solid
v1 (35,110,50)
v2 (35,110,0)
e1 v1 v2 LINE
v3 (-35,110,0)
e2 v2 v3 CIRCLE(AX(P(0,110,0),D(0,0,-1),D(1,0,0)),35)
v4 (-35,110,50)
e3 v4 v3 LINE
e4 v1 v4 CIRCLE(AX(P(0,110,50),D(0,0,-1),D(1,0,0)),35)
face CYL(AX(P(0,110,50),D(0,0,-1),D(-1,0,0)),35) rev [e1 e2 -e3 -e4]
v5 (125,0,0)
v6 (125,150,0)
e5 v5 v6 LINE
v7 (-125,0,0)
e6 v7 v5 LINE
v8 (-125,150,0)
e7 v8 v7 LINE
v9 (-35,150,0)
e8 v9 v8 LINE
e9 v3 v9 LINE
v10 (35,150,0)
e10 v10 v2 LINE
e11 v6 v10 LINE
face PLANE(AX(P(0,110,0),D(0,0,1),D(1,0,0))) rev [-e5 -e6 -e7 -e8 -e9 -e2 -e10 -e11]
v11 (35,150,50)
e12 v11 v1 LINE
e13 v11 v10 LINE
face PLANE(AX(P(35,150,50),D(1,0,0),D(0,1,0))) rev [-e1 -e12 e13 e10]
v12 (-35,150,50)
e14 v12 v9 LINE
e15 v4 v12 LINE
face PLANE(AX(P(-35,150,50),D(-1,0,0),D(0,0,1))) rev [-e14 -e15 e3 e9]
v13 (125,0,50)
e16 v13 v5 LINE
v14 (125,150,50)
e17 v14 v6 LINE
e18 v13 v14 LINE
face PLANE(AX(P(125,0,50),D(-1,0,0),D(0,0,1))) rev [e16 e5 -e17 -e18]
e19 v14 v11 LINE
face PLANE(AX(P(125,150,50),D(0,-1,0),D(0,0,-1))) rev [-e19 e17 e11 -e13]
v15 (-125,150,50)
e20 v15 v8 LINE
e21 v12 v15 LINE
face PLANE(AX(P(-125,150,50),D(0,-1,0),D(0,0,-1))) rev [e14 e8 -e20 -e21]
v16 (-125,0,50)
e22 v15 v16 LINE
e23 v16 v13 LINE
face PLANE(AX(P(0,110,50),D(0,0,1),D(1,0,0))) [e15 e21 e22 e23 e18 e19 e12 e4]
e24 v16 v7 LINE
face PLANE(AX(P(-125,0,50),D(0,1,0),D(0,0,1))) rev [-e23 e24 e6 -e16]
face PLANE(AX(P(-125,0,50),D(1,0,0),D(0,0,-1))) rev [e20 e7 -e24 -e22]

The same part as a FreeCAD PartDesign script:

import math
import FreeCAD as App
import Part
import Sketcher
from FreeCAD import Vector
Q = App.Units.Quantity

doc = App.newDocument("Part")
body = doc.addObject("PartDesign::Body", "Body")

sketch1 = body.newObject("Sketcher::SketchObject", "Sketch")
sketch1.AttachmentSupport = (doc.getObject("XY_Plane"), [""])
sketch1.MapMode = "FlatFace"
sketch1.addGeometry(Part.LineSegment(Vector(-125, 0, 0), Vector(125, 0, 0)), False)
sketch1.addGeometry(Part.LineSegment(Vector(125, 0, 0), Vector(125, 150, 0)), False)
sketch1.addGeometry(Part.LineSegment(Vector(125, 150, 0), Vector(35, 150, 0)), False)
sketch1.addGeometry(Part.LineSegment(Vector(35, 150, 0), Vector(35, 110, 0)), False)
sketch1.addGeometry(Part.ArcOfCircle(Part.Circle(Vector(0, 110, 0), Vector(0, 0, 1), 35), math.radians(180), math.radians(360)), False)
sketch1.addGeometry(Part.LineSegment(Vector(-35, 110, 0), Vector(-35, 150, 0)), False)
sketch1.addGeometry(Part.LineSegment(Vector(-35, 150, 0), Vector(-125, 150, 0)), False)
sketch1.addGeometry(Part.LineSegment(Vector(-125, 150, 0), Vector(-125, 0, 0)), False)
sketch1.addConstraint(Sketcher.Constraint("Coincident", 0, 2, 1, 1))
sketch1.addConstraint(Sketcher.Constraint("Coincident", 1, 2, 2, 1))
sketch1.addConstraint(Sketcher.Constraint("Coincident", 2, 2, 3, 1))
sketch1.addConstraint(Sketcher.Constraint("Tangent", 3, 2, 4, 2))
sketch1.addConstraint(Sketcher.Constraint("Tangent", 4, 1, 5, 1))
sketch1.addConstraint(Sketcher.Constraint("Coincident", 5, 2, 6, 1))
sketch1.addConstraint(Sketcher.Constraint("Coincident", 6, 2, 7, 1))
sketch1.addConstraint(Sketcher.Constraint("Coincident", 7, 2, 0, 1))
sketch1.addConstraint(Sketcher.Constraint("Horizontal", 0))
sketch1.addConstraint(Sketcher.Constraint("Vertical", 1))
sketch1.addConstraint(Sketcher.Constraint("Horizontal", 2))
sketch1.addConstraint(Sketcher.Constraint("Vertical", 3))
sketch1.addConstraint(Sketcher.Constraint("Vertical", 5))
sketch1.addConstraint(Sketcher.Constraint("Horizontal", 6))
sketch1.addConstraint(Sketcher.Constraint("Vertical", 7))
sketch1.addConstraint(Sketcher.Constraint("Symmetric", 0, 2, 7, 2, -1, 1))
sketch1.addConstraint(Sketcher.Constraint("Symmetric", 2, 2, 5, 2, -2))
sketch1.addConstraint(Sketcher.Constraint("Radius", 4, Q("35 mm")))
sketch1.addConstraint(Sketcher.Constraint("DistanceX", 0, 1, 0, 2, Q("250 mm")))
sketch1.addConstraint(Sketcher.Constraint("DistanceY", 1, 1, 1, 2, Q("150 mm")))
sketch1.addConstraint(Sketcher.Constraint("DistanceY", 3, 2, 3, 1, Q("40 mm")))
pad1 = body.newObject("PartDesign::Pad", "Pad")
pad1.Profile = sketch1
pad1.Length = 50

doc.recompute()
